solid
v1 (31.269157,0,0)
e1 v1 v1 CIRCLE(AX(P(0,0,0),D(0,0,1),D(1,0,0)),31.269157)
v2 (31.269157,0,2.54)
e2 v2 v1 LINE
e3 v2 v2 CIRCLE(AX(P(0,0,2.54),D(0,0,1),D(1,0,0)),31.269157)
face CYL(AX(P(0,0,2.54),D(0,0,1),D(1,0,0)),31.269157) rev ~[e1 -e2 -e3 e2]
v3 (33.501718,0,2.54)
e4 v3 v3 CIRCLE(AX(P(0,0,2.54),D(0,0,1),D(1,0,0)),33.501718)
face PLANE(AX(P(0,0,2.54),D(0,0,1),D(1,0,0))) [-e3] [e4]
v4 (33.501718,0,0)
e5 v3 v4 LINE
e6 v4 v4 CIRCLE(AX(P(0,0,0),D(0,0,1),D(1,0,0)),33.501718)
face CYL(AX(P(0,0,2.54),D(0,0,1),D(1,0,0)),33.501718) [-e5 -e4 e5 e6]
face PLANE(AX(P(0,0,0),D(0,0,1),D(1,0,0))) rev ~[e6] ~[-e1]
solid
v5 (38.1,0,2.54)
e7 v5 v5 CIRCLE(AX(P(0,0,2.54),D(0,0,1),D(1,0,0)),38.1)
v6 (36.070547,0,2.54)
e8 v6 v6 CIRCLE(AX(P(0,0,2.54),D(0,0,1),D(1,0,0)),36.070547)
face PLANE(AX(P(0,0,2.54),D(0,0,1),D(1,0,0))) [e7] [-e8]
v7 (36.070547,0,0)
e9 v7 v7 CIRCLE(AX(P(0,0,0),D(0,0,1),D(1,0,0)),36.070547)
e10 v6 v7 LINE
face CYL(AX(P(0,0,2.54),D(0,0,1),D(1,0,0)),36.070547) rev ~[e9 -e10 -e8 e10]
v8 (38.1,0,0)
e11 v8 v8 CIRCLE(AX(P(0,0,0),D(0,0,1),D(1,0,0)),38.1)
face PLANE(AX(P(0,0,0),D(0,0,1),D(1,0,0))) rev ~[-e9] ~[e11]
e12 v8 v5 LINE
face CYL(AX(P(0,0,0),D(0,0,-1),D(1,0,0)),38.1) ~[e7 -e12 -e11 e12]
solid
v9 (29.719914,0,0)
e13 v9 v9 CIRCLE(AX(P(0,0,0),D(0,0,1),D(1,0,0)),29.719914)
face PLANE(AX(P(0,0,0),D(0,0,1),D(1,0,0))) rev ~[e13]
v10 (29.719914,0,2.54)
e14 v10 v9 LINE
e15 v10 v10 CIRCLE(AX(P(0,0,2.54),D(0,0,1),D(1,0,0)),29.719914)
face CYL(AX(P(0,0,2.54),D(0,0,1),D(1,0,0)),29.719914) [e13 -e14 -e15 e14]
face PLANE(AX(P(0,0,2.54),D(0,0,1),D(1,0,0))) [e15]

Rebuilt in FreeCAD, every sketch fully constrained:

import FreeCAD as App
import Part
import Sketcher
Q = App.Units.Quantity

doc = App.newDocument("Part")
body = doc.addObject("PartDesign::Body", "Body")
body.AllowCompound = True

sketch1 = body.newObject("Sketcher::SketchObject", "Sketch")
sketch1.AttachmentSupport = (doc.getObject("XY_Plane"), [""])
sketch1.MapMode = "FlatFace"
sketch1.addGeometry(Part.Circle(App.Vector(0, 0, 0), App.Vector(0, 0, 1), 38.1), False)
sketch1.addConstraint(Sketcher.Constraint("Coincident", 0, 3, -1, 1))
sketch1.addConstraint(Sketcher.Constraint("Diameter", 0, Q("3 in")))
pad1 = body.newObject("PartDesign::Pad", "Pad")
pad1.Profile = sketch1
pad1.Length = Q("0.1 in")

sketch2 = body.newObject("Sketcher::SketchObject", "Sketch001")
sketch2.AttachmentSupport = (doc.getObject("XY_Plane"), [""])
sketch2.MapMode = "FlatFace"
sketch2.AttachmentOffset = App.Placement(App.Vector(0, 0, 0.1 * 25.4), App.Rotation())
sketch2.addGeometry(Part.Circle(App.Vector(0, 0, 0), App.Vector(0, 0, 1), 36.070547), False)
sketch2.addGeometry(Part.Circle(App.Vector(0, 0, 0), App.Vector(0, 0, 1), 33.501718), False)
sketch2.addConstraint(Sketcher.Constraint("Coincident", 0, 3, -1, 1))
sketch2.addConstraint(Sketcher.Constraint("Coincident", 1, 3, -1, 1))
sketch2.addConstraint(Sketcher.Constraint("Diameter", 0, Q("72.141094 mm")))
sketch2.addConstraint(Sketcher.Constraint("Diameter", 1, Q("67.003436 mm")))
pocket1 = body.newObject("PartDesign::Pocket", "Pocket")
pocket1.Profile = sketch2
pocket1.Length = Q("1 in")

sketch3 = body.newObject("Sketcher::SketchObject", "Sketch002")
sketch3.AttachmentSupport = (doc.getObject("XY_Plane"), [""])
sketch3.MapMode = "FlatFace"
sketch3.AttachmentOffset = App.Placement(App.Vector(0, 0, 0.1 * 25.4), App.Rotation())
sketch3.addGeometry(Part.Circle(App.Vector(0, 0, 0), App.Vector(0, 0, 1), 31.269157), False)
sketch3.addGeometry(Part.Circle(App.Vector(0, 0, 0), App.Vector(0, 0, 1), 29.719914), False)
sketch3.addConstraint(Sketcher.Constraint("Coincident", 0, 3, -1, 1))
sketch3.addConstraint(Sketcher.Constraint("Coincident", 1, 3, -1, 1))
sketch3.addConstraint(Sketcher.Constraint("Diameter", 0, Q("62.538314 mm")))
sketch3.addConstraint(Sketcher.Constraint("Diameter", 1, Q("59.439828 mm")))
pocket2 = body.newObject("PartDesign::Pocket", "Pocket001")
pocket2.Profile = sketch3
pocket2.Length = Q("1 in")

doc.recompute()
